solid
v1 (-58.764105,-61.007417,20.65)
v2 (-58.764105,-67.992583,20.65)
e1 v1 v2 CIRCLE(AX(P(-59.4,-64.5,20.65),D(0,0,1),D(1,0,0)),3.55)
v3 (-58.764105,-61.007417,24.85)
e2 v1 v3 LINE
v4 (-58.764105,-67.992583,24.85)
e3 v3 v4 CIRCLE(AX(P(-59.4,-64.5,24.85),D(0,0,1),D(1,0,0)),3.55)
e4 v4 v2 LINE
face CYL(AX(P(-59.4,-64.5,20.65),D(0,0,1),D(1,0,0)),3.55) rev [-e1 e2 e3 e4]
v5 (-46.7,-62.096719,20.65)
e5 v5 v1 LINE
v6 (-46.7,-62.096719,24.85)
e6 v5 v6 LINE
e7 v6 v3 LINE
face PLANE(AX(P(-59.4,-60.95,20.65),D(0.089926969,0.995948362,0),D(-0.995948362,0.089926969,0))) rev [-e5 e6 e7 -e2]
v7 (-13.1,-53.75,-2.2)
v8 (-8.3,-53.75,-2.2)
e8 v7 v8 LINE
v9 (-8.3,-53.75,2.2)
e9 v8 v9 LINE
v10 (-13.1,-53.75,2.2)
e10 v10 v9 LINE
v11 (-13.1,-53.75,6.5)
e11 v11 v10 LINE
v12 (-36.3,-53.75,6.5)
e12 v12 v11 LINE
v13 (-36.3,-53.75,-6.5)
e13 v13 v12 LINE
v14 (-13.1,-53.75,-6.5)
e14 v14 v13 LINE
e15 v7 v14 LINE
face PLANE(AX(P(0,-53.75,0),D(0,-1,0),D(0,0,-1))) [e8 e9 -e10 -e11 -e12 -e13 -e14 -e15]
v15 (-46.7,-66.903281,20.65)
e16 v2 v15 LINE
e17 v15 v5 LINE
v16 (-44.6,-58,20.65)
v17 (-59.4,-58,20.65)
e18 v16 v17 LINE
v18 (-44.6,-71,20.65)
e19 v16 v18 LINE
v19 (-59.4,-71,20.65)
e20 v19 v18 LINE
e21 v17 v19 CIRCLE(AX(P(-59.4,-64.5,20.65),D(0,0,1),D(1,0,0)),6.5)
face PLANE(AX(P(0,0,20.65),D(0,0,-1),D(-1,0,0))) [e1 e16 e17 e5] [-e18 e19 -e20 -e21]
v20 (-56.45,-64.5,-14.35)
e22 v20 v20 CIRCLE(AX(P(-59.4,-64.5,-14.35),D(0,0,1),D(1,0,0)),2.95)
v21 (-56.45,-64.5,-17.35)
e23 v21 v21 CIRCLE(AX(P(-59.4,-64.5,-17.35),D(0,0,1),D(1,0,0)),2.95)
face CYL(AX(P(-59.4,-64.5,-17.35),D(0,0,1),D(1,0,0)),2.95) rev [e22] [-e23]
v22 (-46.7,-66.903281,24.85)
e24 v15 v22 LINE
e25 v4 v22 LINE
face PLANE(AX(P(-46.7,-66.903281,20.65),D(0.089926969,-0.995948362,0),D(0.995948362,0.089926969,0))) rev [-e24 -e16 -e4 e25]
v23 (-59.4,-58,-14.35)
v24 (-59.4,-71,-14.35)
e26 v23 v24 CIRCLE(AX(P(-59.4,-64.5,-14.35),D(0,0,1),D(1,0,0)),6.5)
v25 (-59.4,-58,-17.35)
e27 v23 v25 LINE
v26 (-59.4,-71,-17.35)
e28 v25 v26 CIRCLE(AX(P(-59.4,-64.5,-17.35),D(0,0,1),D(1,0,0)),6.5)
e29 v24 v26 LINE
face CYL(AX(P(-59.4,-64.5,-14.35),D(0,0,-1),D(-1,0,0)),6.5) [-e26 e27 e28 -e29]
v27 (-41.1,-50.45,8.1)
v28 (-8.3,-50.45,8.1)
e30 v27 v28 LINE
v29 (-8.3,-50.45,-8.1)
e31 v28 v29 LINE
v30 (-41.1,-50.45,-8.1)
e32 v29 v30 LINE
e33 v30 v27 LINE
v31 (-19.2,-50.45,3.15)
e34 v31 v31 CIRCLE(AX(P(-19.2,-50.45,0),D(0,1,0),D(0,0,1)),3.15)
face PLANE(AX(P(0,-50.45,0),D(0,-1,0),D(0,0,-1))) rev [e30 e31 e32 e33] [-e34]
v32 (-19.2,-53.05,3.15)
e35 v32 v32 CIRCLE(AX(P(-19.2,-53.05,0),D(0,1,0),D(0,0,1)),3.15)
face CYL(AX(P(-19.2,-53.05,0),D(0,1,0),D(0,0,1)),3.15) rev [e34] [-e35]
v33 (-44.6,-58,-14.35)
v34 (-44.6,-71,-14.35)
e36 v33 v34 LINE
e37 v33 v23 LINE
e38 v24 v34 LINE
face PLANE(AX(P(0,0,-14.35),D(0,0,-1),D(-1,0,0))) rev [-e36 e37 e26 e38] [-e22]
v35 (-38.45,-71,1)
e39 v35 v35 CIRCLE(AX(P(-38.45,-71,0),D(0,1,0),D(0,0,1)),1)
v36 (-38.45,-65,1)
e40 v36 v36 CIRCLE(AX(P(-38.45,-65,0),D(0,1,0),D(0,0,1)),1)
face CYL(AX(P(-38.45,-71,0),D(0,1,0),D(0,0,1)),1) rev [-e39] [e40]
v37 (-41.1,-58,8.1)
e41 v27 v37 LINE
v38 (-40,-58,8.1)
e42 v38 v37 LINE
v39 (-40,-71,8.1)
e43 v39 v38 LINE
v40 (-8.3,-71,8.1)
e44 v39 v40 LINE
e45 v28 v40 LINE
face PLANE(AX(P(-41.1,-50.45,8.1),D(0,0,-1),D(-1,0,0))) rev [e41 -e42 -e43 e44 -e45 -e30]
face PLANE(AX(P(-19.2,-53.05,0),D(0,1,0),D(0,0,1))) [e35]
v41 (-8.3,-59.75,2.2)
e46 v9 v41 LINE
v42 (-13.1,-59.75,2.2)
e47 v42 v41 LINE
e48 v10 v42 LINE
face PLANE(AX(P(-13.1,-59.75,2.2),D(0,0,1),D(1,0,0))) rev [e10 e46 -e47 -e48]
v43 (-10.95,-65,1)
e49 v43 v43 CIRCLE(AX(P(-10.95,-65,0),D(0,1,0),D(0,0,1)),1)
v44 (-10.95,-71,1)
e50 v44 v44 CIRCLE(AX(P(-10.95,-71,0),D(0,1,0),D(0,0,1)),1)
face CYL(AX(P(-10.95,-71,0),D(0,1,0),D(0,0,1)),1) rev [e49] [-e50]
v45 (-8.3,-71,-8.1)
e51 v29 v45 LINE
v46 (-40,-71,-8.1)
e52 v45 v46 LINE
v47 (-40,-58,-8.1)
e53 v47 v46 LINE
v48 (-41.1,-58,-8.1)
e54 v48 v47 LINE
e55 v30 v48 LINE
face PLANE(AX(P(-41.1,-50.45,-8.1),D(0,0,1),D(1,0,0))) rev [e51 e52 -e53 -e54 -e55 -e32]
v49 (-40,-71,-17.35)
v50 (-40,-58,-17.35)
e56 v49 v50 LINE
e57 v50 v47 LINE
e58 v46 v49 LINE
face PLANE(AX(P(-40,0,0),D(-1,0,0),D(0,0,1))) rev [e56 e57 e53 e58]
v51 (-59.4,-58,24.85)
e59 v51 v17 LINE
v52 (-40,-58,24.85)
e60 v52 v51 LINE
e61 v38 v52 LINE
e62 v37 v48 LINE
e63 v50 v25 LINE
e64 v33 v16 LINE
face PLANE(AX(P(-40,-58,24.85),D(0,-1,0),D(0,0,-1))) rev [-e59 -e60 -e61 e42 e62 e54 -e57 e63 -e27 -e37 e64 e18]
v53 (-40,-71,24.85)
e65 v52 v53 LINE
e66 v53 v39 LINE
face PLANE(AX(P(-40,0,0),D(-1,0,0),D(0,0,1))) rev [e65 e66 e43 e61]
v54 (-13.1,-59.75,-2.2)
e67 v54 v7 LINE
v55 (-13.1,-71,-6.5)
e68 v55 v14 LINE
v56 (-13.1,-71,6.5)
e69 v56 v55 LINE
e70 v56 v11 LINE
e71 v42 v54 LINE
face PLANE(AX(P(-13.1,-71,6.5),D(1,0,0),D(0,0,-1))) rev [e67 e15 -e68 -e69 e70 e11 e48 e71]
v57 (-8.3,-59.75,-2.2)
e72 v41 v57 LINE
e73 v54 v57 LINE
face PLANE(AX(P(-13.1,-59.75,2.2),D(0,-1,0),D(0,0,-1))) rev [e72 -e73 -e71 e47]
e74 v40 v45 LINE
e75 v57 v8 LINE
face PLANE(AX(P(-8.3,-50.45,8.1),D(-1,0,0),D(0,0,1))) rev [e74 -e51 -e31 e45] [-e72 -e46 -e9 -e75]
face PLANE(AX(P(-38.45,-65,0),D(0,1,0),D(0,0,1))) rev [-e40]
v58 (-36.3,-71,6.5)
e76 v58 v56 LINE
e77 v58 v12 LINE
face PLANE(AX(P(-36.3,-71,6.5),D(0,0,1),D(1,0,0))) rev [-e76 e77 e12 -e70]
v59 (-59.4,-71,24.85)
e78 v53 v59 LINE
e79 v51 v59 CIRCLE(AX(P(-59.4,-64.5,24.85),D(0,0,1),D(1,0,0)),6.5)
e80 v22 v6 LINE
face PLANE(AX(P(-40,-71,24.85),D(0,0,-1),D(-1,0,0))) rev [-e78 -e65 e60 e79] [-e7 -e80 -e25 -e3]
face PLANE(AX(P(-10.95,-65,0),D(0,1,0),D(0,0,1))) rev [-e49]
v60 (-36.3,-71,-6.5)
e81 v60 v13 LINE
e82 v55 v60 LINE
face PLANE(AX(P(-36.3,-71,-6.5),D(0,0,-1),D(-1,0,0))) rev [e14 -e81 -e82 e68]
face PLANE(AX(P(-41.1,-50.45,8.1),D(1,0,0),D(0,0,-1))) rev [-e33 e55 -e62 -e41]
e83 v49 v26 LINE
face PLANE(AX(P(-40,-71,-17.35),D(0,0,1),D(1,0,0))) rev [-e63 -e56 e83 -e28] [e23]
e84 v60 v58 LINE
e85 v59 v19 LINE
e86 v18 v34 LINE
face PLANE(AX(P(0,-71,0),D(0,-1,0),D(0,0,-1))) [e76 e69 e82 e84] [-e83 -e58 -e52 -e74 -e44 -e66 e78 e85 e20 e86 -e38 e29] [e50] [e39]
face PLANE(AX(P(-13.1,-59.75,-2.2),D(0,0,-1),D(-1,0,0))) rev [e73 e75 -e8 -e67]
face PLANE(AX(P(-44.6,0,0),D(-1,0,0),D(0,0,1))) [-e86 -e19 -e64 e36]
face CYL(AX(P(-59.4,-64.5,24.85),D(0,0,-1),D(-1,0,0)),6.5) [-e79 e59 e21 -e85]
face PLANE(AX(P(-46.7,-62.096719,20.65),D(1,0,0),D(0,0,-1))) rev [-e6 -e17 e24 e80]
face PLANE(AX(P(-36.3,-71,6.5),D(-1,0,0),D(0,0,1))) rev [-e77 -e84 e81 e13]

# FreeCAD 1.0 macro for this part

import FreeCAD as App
import Part
import Sketcher
Q = App.Units.Quantity


def add_polygon(sketch, points):
    """Adds a closed chain of lines whose ends are joined by coincident constraints."""
    first, n = sketch.GeometryCount, len(points)
    for a, b in zip(points, points[1:] + points[:1]):
        sketch.addGeometry(Part.LineSegment(App.Vector(*a, 0), App.Vector(*b, 0)), False)
    for i in range(n):
        sketch.addConstraint(Sketcher.Constraint("Coincident", first + i, 2, first + (i + 1) % n, 1))

doc = App.newDocument("Part")
body = doc.addObject("PartDesign::Body", "Body")

# Sketch on XZ plane
sketch1 = body.newObject("Sketcher::SketchObject", "Sketch")
sketch1.AttachmentSupport = (doc.getObject("XZ_Plane"), [""])
sketch1.MapMode = "FlatFace"
sketch1.AttachmentOffset = App.Placement(App.Vector(0, 0, 60.725), App.Rotation())
add_polygon(sketch1, [(-41.1, -8.1), (-41.1, 8.1), (-8.3, 8.1), (-8.3, -8.1)])  # lines 0-3
sketch1.addConstraint([
    Sketcher.Constraint("Vertical", 0),
    Sketcher.Constraint("Horizontal", 1),
    Sketcher.Constraint("Vertical", 2),
    Sketcher.Constraint("Horizontal", 3),
    Sketcher.Constraint("DistanceX", 1, 1, 1, 2, Q("32.8 mm")),
    Sketcher.Constraint("DistanceY", 0, 1, 0, 2, Q("16.2 mm")),
    Sketcher.Constraint("DistanceX", 0, 2, -1, 1, Q("41.1 mm")),
    Sketcher.Constraint("DistanceY", -1, 1, 0, 2, Q("8.1 mm")),
])
pad1 = body.newObject("PartDesign::Pad", "Pad")
pad1.Profile = sketch1
pad1.Length = 20.55
pad1.Midplane = True

# Sketch on YZ plane
sketch2 = body.newObject("Sketcher::SketchObject", "Sketch001")
sketch2.AttachmentSupport = (doc.getObject("YZ_Plane"), [""])
sketch2.MapMode = "FlatFace"
sketch2.AttachmentOffset = App.Placement(App.Vector(0, 0, -42.3), App.Rotation())
add_polygon(sketch2, [(-58, 24.85), (-71, 24.85), (-71, -17.35), (-58, -17.35)])  # lines 0-3
sketch2.addConstraint([
    Sketcher.Constraint("Horizontal", 0),
    Sketcher.Constraint("Vertical", 1),
    Sketcher.Constraint("Horizontal", 2),
    Sketcher.Constraint("Vertical", 3),
    Sketcher.Constraint("DistanceX", 0, 2, 0, 1, Q("13 mm")),
    Sketcher.Constraint("DistanceY", 1, 2, 1, 1, Q("42.2 mm")),
    Sketcher.Constraint("DistanceX", 0, 2, -1, 1, Q("71 mm")),
    Sketcher.Constraint("DistanceY", -1, 1, 0, 2, Q("24.85 mm")),
])
pad2 = body.newObject("PartDesign::Pad", "Pad001")
pad2.Profile = sketch2
pad2.Length = 4.6
pad2.Midplane = True
body2 = doc.addObject("PartDesign::Body", "Body001")

# Sketch on XY plane
sketch3 = body2.newObject("Sketcher::SketchObject", "Sketch002")
sketch3.AttachmentSupport = (doc.getObject("XY_Plane001"), [""])
sketch3.MapMode = "FlatFace"
sketch3.AttachmentOffset = App.Placement(App.Vector(0, 0, 22.75), App.Rotation())
sketch3.addGeometry(Part.Circle(App.Vector(-59.4, -64.5, 0), App.Vector(0, 0, 1), 6.5), False)
sketch3.addConstraint([
    Sketcher.Constraint("Diameter", 0, Q("13 mm")),
    Sketcher.Constraint("DistanceX", 0, 3, -1, 1, Q("59.4 mm")),
    Sketcher.Constraint("DistanceY", 0, 3, -1, 1, Q("64.5 mm")),
])
pad3 = body2.newObject("PartDesign::Pad", "Pad002")
pad3.Profile = sketch3
pad3.Length = 4.2
pad3.Midplane = True
body.AllowCompound = True
doc.recompute()

boolean = body.newObject("PartDesign::Boolean", "Boolean")
boolean.Type = "Fuse"
boolean.addObjects([body2])

# Sketch on XY plane
sketch4 = body.newObject("Sketcher::SketchObject", "Sketch003")
sketch4.AttachmentSupport = (doc.getObject("XY_Plane"), [""])
sketch4.MapMode = "FlatFace"
sketch4.AttachmentOffset = App.Placement(App.Vector(0, 0, 22.75), App.Rotation())
add_polygon(sketch4, [(-59.4, -58), (-59.4, -71), (-41.1, -71), (-41.1, -58)])  # lines 0-3
sketch4.addConstraint([
    Sketcher.Constraint("Vertical", 0),
    Sketcher.Constraint("Horizontal", 1),
    Sketcher.Constraint("Vertical", 2),
    Sketcher.Constraint("Horizontal", 3),
    Sketcher.Constraint("DistanceY", 0, 2, 0, 1, Q("13 mm")),
    Sketcher.Constraint("DistanceX", 1, 1, 1, 2, Q("18.3 mm")),
    Sketcher.Constraint("DistanceY", 0, 2, -1, 1, Q("71 mm")),
    Sketcher.Constraint("DistanceX", 0, 2, -1, 1, Q("59.4 mm")),
])
pad4 = body.newObject("PartDesign::Pad", "Pad003")
pad4.Profile = sketch4
pad4.Length = 4.2
pad4.Midplane = True

# Sketch on XY plane
sketch5 = body.newObject("Sketcher::SketchObject", "Sketch004")
sketch5.AttachmentSupport = (doc.getObject("XY_Plane"), [""])
sketch5.MapMode = "FlatFace"
sketch5.AttachmentOffset = App.Placement(App.Vector(0, 0, 22.75), App.Rotation())
sketch5.addGeometry(Part.Circle(App.Vector(-59.4, -64.5, 0), App.Vector(0, 0, 1), 3.55), False)
sketch5.addConstraint([
    Sketcher.Constraint("Diameter", 0, Q("7.1 mm")),
    Sketcher.Constraint("DistanceX", 0, 3, -1, 1, Q("59.4 mm")),
    Sketcher.Constraint("DistanceY", 0, 3, -1, 1, Q("64.5 mm")),
])
pocket1 = body.newObject("PartDesign::Pocket", "Pocket")
pocket1.Profile = sketch5
pocket1.Length = 4.2
pocket1.Midplane = True

# Sketch on XY plane
sketch6 = body.newObject("Sketcher::SketchObject", "Sketch005")
sketch6.AttachmentSupport = (doc.getObject("XY_Plane"), [""])
sketch6.MapMode = "FlatFace"
sketch6.AttachmentOffset = App.Placement(App.Vector(0, 0, 22.75), App.Rotation())
add_polygon(sketch6, [(-46.7, -62.096719), (-59.4, -60.95), (-59.4, -68.05), (-46.7, -66.903281)])  # lines 0-3
sketch6.addConstraint([
    Sketcher.Constraint("Vertical", 1),
    Sketcher.Constraint("Vertical", 3),
    Sketcher.Constraint("Equal", 0, 2),
    Sketcher.Constraint("DistanceY", 1, 2, 1, 1, Q("7.1 mm")),
    Sketcher.Constraint("DistanceX", 0, 2, -1, 1, Q("59.4 mm")),
    Sketcher.Constraint("DistanceX", 2, 2, -1, 1, Q("46.7 mm")),
    Sketcher.Constraint("DistanceY", 0, 2, -1, 1, Q("60.95 mm")),
    Sketcher.Constraint("DistanceY", 3, 1, 3, 2, Q("4.806563 mm")),
])
pocket2 = body.newObject("PartDesign::Pocket", "Pocket001")
pocket2.Profile = sketch6
pocket2.Length = 4.2
pocket2.Midplane = True
body3 = doc.addObject("PartDesign::Body", "Body002")

# Sketch on XY plane
sketch7 = body3.newObject("Sketcher::SketchObject", "Sketch006")
sketch7.AttachmentSupport = (doc.getObject("XY_Plane002"), [""])
sketch7.MapMode = "FlatFace"
sketch7.AttachmentOffset = App.Placement(App.Vector(0, 0, -15.85), App.Rotation())
sketch7.addGeometry(Part.Circle(App.Vector(-59.4, -64.5, 0), App.Vector(0, 0, 1), 6.5), False)
sketch7.addConstraint([
    Sketcher.Constraint("Diameter", 0, Q("13 mm")),
    Sketcher.Constraint("DistanceX", 0, 3, -1, 1, Q("59.4 mm")),
    Sketcher.Constraint("DistanceY", 0, 3, -1, 1, Q("64.5 mm")),
])
pad5 = body3.newObject("PartDesign::Pad", "Pad004")
pad5.Profile = sketch7
pad5.Length = 3
pad5.Midplane = True
body.AllowCompound = True
doc.recompute()

boolean2 = body.newObject("PartDesign::Boolean", "Boolean001")
boolean2.Type = "Fuse"
boolean2.addObjects([body3])

# Sketch on XY plane
sketch8 = body.newObject("Sketcher::SketchObject", "Sketch007")
sketch8.AttachmentSupport = (doc.getObject("XY_Plane"), [""])
sketch8.MapMode = "FlatFace"
sketch8.AttachmentOffset = App.Placement(App.Vector(0, 0, -15.85), App.Rotation())
add_polygon(sketch8, [(-59.4, -58), (-59.4, -71), (-41.1, -71), (-41.1, -58)])  # lines 0-3
sketch8.addConstraint([
    Sketcher.Constraint("Vertical", 0),
    Sketcher.Constraint("Horizontal", 1),
    Sketcher.Constraint("Vertical", 2),
    Sketcher.Constraint("Horizontal", 3),
    Sketcher.Constraint("DistanceY", 0, 2, 0, 1, Q("13 mm")),
    Sketcher.Constraint("DistanceX", 1, 1, 1, 2, Q("18.3 mm")),
    Sketcher.Constraint("DistanceY", 0, 2, -1, 1, Q("71 mm")),
    Sketcher.Constraint("DistanceX", 0, 2, -1, 1, Q("59.4 mm")),
])
pad6 = body.newObject("PartDesign::Pad", "Pad005")
pad6.Profile = sketch8
pad6.Length = 3
pad6.Midplane = True

# Sketch on XY plane
sketch9 = body.newObject("Sketcher::SketchObject", "Sketch008")
sketch9.AttachmentSupport = (doc.getObject("XY_Plane"), [""])
sketch9.MapMode = "FlatFace"
sketch9.AttachmentOffset = App.Placement(App.Vector(0, 0, -15.85), App.Rotation())
sketch9.addGeometry(Part.Circle(App.Vector(-59.4, -64.5, 0), App.Vector(0, 0, 1), 2.95), False)
sketch9.addConstraint([
    Sketcher.Constraint("Diameter", 0, Q("5.9 mm")),
    Sketcher.Constraint("DistanceX", 0, 3, -1, 1, Q("59.4 mm")),
    Sketcher.Constraint("DistanceY", 0, 3, -1, 1, Q("64.5 mm")),
])
pocket3 = body.newObject("PartDesign::Pocket", "Pocket002")
pocket3.Profile = sketch9
pocket3.Length = 3
pocket3.Midplane = True

# Sketch on XZ plane
sketch10 = body.newObject("Sketcher::SketchObject", "Sketch009")
sketch10.AttachmentSupport = (doc.getObject("XZ_Plane"), [""])
sketch10.MapMode = "FlatFace"
sketch10.AttachmentOffset = App.Placement(App.Vector(0, 0, 62.375), App.Rotation())
add_polygon(sketch10, [(-36.3, -6.5), (-36.3, 6.5), (-13.1, 6.5), (-13.1, -6.5)])  # lines 0-3
sketch10.addConstraint([
    Sketcher.Constraint("Vertical", 0),
    Sketcher.Constraint("Horizontal", 1),
    Sketcher.Constraint("Vertical", 2),
    Sketcher.Constraint("Horizontal", 3),
    Sketcher.Constraint("DistanceY", 0, 1, 0, 2, Q("13 mm")),
    Sketcher.Constraint("DistanceX", 1, 1, 1, 2, Q("23.2 mm")),
    Sketcher.Constraint("DistanceX", 0, 2, -1, 1, Q("36.3 mm")),
    Sketcher.Constraint("DistanceY", -1, 1, 0, 2, Q("6.5 mm")),
])
pocket4 = body.newObject("PartDesign::Pocket", "Pocket003")
pocket4.Profile = sketch10
pocket4.Length = 17.25
pocket4.Midplane = True

# Sketch on XZ plane
sketch11 = body.newObject("Sketcher::SketchObject", "Sketch010")
sketch11.AttachmentSupport = (doc.getObject("XZ_Plane"), [""])
sketch11.MapMode = "FlatFace"
sketch11.AttachmentOffset = App.Placement(App.Vector(0, 0, 68), App.Rotation())
sketch11.addGeometry(Part.Circle(App.Vector(-38.45, 0, 0), App.Vector(0, 0, 1), 1), False)
sketch11.addConstraint([
    Sketcher.Constraint("PointOnObject", 0, 3, -1),
    Sketcher.Constraint("Diameter", 0, Q("2 mm")),
    Sketcher.Constraint("DistanceX", 0, 3, -1, 1, Q("38.45 mm")),
])
pocket5 = body.newObject("PartDesign::Pocket", "Pocket004")
pocket5.Profile = sketch11
pocket5.Length = 6
pocket5.Midplane = True

# Sketch on XZ plane
sketch12 = body.newObject("Sketcher::SketchObject", "Sketch011")
sketch12.AttachmentSupport = (doc.getObject("XZ_Plane"), [""])
sketch12.MapMode = "FlatFace"
sketch12.AttachmentOffset = App.Placement(App.Vector(0, 0, 68), App.Rotation())
sketch12.addGeometry(Part.Circle(App.Vector(-10.95, 0, 0), App.Vector(0, 0, 1), 1), False)
sketch12.addConstraint([
    Sketcher.Constraint("PointOnObject", 0, 3, -1),
    Sketcher.Constraint("Diameter", 0, Q("2 mm")),
    Sketcher.Constraint("DistanceX", 0, 3, -1, 1, Q("10.95 mm")),
])
pocket6 = body.newObject("PartDesign::Pocket", "Pocket005")
pocket6.Profile = sketch12
pocket6.Length = 6
pocket6.Midplane = True

# Sketch on XZ plane
sketch13 = body.newObject("Sketcher::SketchObject", "Sketch012")
sketch13.AttachmentSupport = (doc.getObject("XZ_Plane"), [""])
sketch13.MapMode = "FlatFace"
sketch13.AttachmentOffset = App.Placement(App.Vector(0, 0, 51.75), App.Rotation())
sketch13.addGeometry(Part.Circle(App.Vector(-19.2, 0, 0), App.Vector(0, 0, 1), 3.15), False)
sketch13.addConstraint([
    Sketcher.Constraint("PointOnObject", 0, 3, -1),
    Sketcher.Constraint("Diameter", 0, Q("6.3 mm")),
    Sketcher.Constraint("DistanceX", 0, 3, -1, 1, Q("19.2 mm")),
])
pocket7 = body.newObject("PartDesign::Pocket", "Pocket006")
pocket7.Profile = sketch13
pocket7.Length = 2.6
pocket7.Midplane = True

# Sketch on YZ plane
sketch14 = body.newObject("Sketcher::SketchObject", "Sketch013")
sketch14.AttachmentSupport = (doc.getObject("YZ_Plane"), [""])
sketch14.MapMode = "FlatFace"
sketch14.AttachmentOffset = App.Placement(App.Vector(0, 0, -10.7), App.Rotation())
add_polygon(sketch14, [(-53.75, 2.2), (-59.75, 2.2), (-59.75, -2.2), (-53.75, -2.2)])  # lines 0-3
sketch14.addConstraint([
    Sketcher.Constraint("Horizontal", 0),
    Sketcher.Constraint("Vertical", 1),
    Sketcher.Constraint("Horizontal", 2),
    Sketcher.Constraint("Vertical", 3),
    Sketcher.Constraint("DistanceX", 0, 2, 0, 1, Q("6 mm")),
    Sketcher.Constraint("DistanceY", 1, 2, 1, 1, Q("4.4 mm")),
    Sketcher.Constraint("DistanceY", -1, 1, 0, 2, Q("2.2 mm")),
    Sketcher.Constraint("DistanceX", 0, 2, -1, 1, Q("59.75 mm")),
])
pocket8 = body.newObject("PartDesign::Pocket", "Pocket007")
pocket8.Profile = sketch14
pocket8.Length = 4.8
pocket8.Midplane = True

doc.recompute()
